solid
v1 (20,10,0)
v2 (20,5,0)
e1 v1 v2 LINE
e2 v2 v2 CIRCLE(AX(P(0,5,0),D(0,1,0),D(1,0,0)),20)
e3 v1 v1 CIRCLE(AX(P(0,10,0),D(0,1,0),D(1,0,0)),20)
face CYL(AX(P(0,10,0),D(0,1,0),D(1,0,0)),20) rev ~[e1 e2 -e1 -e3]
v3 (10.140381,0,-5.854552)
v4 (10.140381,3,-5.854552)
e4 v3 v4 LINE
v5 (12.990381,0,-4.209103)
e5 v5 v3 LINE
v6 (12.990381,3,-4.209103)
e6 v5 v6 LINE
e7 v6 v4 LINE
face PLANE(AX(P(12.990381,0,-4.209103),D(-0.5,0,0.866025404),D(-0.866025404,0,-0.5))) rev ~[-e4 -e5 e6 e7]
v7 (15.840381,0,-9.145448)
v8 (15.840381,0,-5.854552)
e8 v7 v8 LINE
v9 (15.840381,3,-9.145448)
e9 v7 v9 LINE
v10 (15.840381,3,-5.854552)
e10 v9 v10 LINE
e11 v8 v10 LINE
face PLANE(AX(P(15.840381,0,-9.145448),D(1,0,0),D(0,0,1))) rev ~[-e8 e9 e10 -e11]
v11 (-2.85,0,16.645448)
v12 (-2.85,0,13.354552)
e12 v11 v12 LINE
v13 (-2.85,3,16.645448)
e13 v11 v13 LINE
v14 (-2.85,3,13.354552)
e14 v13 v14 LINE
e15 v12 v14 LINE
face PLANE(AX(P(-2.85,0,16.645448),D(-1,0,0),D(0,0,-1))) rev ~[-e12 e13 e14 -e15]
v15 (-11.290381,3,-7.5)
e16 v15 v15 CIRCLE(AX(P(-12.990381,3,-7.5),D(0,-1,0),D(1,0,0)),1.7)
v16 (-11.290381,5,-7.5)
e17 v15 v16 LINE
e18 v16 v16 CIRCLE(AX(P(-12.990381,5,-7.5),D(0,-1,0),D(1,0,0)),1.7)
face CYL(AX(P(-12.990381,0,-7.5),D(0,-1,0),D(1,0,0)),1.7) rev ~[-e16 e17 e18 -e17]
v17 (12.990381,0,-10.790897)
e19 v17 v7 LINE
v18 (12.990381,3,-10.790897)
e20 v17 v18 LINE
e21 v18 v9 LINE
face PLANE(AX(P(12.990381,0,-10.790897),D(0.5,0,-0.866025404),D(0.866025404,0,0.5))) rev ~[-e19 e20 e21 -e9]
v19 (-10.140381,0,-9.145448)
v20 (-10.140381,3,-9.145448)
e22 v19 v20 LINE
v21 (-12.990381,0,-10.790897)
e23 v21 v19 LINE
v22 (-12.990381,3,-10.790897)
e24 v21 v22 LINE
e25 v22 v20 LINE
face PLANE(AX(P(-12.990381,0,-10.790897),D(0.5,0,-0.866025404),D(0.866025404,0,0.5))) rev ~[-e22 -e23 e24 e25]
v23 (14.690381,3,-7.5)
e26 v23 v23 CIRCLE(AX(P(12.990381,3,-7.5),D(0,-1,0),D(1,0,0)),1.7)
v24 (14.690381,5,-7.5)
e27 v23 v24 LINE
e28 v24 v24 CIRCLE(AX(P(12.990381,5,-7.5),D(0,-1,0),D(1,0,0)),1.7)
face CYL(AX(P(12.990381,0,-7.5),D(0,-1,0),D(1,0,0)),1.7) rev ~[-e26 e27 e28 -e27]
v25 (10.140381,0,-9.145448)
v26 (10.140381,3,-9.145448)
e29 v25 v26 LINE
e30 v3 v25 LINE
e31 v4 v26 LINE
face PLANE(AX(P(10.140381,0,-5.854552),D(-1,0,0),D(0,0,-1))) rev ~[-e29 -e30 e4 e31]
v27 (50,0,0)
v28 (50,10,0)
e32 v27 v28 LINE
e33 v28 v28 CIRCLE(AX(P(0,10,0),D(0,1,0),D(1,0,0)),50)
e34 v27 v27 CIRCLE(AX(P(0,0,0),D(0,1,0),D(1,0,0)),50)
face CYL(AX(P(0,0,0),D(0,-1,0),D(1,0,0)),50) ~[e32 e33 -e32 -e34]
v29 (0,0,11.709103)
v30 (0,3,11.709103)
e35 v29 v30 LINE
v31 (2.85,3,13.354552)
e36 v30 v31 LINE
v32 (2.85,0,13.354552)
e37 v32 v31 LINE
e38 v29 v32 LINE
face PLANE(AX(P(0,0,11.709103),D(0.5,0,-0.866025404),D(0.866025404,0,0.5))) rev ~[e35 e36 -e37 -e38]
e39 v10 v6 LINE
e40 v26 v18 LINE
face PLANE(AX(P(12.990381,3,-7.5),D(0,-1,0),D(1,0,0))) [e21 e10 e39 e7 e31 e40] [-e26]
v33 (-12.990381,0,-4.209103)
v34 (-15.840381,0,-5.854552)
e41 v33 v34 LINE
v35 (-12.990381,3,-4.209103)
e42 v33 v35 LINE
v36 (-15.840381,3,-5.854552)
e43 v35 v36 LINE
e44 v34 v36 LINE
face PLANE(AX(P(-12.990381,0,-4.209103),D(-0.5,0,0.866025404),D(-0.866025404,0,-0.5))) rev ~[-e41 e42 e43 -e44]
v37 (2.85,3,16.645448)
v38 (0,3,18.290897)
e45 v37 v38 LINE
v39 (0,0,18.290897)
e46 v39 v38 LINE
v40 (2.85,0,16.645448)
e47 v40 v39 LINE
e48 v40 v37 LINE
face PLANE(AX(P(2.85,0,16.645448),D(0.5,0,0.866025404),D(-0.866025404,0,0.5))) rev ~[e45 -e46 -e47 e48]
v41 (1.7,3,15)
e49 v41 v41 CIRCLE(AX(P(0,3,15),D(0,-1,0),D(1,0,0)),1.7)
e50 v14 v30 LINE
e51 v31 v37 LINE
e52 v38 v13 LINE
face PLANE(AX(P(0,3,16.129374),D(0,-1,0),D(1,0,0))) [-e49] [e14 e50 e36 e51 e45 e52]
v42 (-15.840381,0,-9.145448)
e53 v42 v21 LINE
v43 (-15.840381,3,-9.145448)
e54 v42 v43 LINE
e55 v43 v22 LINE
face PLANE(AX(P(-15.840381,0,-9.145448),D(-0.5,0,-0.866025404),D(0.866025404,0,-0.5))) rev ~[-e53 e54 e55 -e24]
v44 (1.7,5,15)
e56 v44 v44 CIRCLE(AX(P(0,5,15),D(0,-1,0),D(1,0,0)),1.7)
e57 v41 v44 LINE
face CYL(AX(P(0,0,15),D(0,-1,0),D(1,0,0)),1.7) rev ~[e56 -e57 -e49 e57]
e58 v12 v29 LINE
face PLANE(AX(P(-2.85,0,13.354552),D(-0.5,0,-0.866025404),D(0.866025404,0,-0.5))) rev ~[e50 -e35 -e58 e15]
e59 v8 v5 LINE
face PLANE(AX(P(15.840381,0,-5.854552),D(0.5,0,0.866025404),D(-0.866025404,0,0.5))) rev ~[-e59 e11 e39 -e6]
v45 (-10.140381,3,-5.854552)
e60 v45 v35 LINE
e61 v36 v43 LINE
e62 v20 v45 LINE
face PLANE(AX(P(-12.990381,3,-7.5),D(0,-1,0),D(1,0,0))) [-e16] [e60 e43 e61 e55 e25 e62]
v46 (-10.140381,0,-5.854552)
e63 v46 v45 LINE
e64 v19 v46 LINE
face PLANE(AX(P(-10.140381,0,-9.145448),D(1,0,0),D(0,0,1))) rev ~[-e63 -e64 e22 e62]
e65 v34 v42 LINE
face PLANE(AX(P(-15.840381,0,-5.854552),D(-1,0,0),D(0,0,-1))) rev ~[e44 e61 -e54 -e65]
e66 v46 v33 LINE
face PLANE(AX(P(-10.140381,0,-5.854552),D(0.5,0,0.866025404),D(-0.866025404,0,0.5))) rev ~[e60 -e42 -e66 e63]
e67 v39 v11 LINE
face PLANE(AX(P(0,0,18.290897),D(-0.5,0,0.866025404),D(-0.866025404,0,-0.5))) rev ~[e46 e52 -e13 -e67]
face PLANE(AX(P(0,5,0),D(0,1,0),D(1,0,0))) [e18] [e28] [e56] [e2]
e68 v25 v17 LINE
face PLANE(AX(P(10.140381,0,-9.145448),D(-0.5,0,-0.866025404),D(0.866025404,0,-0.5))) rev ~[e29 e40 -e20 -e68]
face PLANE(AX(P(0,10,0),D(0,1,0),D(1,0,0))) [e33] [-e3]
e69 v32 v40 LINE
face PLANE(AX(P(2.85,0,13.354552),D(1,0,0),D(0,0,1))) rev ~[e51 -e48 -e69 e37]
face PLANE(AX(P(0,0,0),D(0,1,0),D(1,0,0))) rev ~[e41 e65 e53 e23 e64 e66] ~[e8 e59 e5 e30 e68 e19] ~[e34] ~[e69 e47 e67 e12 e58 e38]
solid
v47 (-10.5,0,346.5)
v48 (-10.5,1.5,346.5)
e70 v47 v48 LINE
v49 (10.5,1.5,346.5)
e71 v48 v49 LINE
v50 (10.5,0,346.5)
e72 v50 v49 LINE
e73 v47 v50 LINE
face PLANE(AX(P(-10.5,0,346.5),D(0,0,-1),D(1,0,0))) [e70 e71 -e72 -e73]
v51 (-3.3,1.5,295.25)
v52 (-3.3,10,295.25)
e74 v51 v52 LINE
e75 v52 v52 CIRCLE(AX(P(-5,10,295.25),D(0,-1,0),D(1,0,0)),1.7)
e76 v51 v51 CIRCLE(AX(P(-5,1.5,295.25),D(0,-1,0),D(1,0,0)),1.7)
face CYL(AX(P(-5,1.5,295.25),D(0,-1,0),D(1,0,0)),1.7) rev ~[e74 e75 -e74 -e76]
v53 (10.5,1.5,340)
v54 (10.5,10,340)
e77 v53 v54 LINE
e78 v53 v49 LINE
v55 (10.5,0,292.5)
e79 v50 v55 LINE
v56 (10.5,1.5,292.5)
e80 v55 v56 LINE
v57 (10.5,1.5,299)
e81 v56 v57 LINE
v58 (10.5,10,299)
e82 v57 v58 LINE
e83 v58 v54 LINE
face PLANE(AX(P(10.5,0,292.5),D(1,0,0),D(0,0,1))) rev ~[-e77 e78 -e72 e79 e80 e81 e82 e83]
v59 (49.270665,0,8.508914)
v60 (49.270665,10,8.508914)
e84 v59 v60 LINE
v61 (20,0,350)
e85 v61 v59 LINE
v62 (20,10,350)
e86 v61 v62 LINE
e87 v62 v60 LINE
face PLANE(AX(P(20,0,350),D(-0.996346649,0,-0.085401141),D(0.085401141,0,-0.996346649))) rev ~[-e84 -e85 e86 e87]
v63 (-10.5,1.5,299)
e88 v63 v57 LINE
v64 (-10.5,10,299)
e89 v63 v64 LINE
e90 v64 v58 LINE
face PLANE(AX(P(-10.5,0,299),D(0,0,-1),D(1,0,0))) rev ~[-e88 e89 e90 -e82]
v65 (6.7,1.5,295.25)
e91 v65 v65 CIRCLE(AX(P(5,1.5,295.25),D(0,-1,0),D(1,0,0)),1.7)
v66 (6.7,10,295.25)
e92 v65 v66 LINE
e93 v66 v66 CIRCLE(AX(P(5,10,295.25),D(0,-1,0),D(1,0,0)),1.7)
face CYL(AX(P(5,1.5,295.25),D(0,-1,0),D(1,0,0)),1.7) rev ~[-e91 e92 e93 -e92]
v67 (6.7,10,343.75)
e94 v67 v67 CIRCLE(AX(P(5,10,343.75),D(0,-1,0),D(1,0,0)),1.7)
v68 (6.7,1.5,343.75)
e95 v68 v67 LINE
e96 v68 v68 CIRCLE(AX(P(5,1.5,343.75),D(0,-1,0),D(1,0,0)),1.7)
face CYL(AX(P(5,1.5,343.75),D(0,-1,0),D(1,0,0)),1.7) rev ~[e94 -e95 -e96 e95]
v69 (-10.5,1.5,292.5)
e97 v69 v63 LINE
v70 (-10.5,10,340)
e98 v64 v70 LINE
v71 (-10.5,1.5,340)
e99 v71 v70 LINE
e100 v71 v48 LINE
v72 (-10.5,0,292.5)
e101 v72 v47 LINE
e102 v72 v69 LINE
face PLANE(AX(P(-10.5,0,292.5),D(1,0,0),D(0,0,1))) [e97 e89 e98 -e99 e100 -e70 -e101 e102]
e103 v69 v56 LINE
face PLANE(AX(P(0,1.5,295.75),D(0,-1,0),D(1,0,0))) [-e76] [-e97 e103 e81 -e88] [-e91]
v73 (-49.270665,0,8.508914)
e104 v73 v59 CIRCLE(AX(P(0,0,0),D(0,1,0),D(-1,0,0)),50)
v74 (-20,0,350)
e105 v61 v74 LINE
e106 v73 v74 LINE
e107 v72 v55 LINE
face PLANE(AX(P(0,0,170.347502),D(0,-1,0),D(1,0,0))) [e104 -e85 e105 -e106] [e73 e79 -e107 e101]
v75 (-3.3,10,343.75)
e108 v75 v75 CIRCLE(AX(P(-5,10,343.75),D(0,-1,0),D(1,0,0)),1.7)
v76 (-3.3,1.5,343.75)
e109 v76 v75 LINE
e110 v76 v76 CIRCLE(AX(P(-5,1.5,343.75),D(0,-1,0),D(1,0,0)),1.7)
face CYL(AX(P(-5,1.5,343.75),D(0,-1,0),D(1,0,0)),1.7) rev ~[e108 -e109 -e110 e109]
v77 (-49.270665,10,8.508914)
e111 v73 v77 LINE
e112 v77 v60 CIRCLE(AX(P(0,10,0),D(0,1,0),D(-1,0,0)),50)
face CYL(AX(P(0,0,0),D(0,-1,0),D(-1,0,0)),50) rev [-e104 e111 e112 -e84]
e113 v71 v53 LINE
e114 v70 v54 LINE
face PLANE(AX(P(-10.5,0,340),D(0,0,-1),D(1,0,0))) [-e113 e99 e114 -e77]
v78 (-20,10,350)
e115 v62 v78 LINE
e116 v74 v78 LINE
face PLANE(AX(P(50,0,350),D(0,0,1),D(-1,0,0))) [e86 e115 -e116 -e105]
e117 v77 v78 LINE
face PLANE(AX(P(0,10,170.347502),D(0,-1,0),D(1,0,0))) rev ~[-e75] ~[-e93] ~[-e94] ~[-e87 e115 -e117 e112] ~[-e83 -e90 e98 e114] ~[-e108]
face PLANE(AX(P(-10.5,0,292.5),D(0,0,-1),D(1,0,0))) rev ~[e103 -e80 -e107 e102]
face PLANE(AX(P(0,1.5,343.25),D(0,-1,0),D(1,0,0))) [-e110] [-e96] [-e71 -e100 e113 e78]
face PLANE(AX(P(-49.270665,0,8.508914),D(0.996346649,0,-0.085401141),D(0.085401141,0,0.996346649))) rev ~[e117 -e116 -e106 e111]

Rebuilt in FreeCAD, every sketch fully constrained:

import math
import FreeCAD as App
import Part
import Sketcher
Q = App.Units.Quantity


def add_polygon(sketch, points):
    """Adds a closed chain of lines whose ends are joined by coincident constraints."""
    first, n = sketch.GeometryCount, len(points)
    for a, b in zip(points, points[1:] + points[:1]):
        sketch.addGeometry(Part.LineSegment(App.Vector(*a, 0), App.Vector(*b, 0)), False)
    for i in range(n):
        sketch.addConstraint(Sketcher.Constraint("Coincident", first + i, 2, first + (i + 1) % n, 1))

doc = App.newDocument("Part")
body = doc.addObject("PartDesign::Body", "Body")

# Sketch on XZ plane
sketch1 = body.newObject("Sketcher::SketchObject", "Sketch")
sketch1.AttachmentSupport = (doc.getObject("XZ_Plane"), [""])
sketch1.MapMode = "FlatFace"
sketch1.addGeometry(Part.Circle(App.Vector(0, 0, 0), App.Vector(0, 0, 1), 50), False)
sketch1.addConstraint(Sketcher.Constraint("Coincident", 0, 3, -1, 1))
sketch1.addConstraint(Sketcher.Constraint("Diameter", 0, Q("100 mm")))
pad1 = body.newObject("PartDesign::Pad", "Pad")
pad1.Profile = sketch1
pad1.Length = 10
pad1.Reversed = True

# Sketch on XZ plane
sketch2 = body.newObject("Sketcher::SketchObject", "Sketch001")
sketch2.AttachmentSupport = (doc.getObject("XZ_Plane"), [""])
sketch2.MapMode = "FlatFace"
sketch2.AttachmentOffset = App.Placement(App.Vector(0, 0, -10), App.Rotation())
sketch2.addGeometry(Part.Circle(App.Vector(0, 0, 0), App.Vector(0, 0, 1), 20), False)
sketch2.addConstraint(Sketcher.Constraint("Coincident", 0, 3, -1, 1))
sketch2.addConstraint(Sketcher.Constraint("Diameter", 0, Q("40 mm")))
pocket1 = body.newObject("PartDesign::Pocket", "Pocket")
pocket1.Profile = sketch2
pocket1.Length = 5
pocket1.Reversed = True

# Sketch on XZ plane
sketch3 = body.newObject("Sketcher::SketchObject", "Sketch002")
sketch3.AttachmentSupport = (doc.getObject("XZ_Plane"), [""])
sketch3.MapMode = "FlatFace"
add_polygon(sketch3, [(2.9, 16.6), (0, 18.3), (-2.9, 16.6), (-2.9, 13.4), (0, 11.7), (2.9, 13.4)])  # lines 0-5
add_polygon(sketch3, [(-13, -4.2), (-15.8, -5.9), (-15.8, -9.1), (-13, -10.8), (-10.1, -9.1), (-10.1, -5.9)])  # lines 6-11
add_polygon(sketch3, [(15.8, -5.9), (13, -4.2), (10.1, -5.9), (10.1, -9.1), (13, -10.8), (15.8, -9.1)])  # lines 12-17
sketch3.addConstraint(Sketcher.Constraint("Vertical", 2))
sketch3.addConstraint(Sketcher.Constraint("Vertical", 5))
sketch3.addConstraint(Sketcher.Constraint("Vertical", 7))
sketch3.addConstraint(Sketcher.Constraint("Vertical", 10))
sketch3.addConstraint(Sketcher.Constraint("Vertical", 14))
sketch3.addConstraint(Sketcher.Constraint("Vertical", 17))
sketch3.addConstraint(Sketcher.Constraint("Symmetric", 2, 2, 4, 2, -2))
sketch3.addConstraint(Sketcher.Constraint("Symmetric", 11, 2, 12, 2, -2))
sketch3.addConstraint(Sketcher.Constraint("Symmetric", 10, 2, 13, 2, -2))
sketch3.addConstraint(Sketcher.Constraint("Symmetric", 8, 2, 15, 2, -2))
sketch3.addConstraint(Sketcher.Constraint("Symmetric", 7, 2, 16, 2, -2))
sketch3.addConstraint(Sketcher.Constraint("PointOnObject", 0, 2, -2))
sketch3.addConstraint(Sketcher.Constraint("PointOnObject", 3, 2, -2))
sketch3.addConstraint(Sketcher.Constraint("Parallel", 0, 3))
sketch3.addConstraint(Sketcher.Constraint("Parallel", 1, 4))
sketch3.addConstraint(Sketcher.Constraint("Parallel", 4, 6))
sketch3.addConstraint(Sketcher.Constraint("Parallel", 3, 8))
sketch3.addConstraint(Sketcher.Constraint("Parallel", 6, 9))
sketch3.addConstraint(Sketcher.Constraint("Parallel", 8, 11))
sketch3.addConstraint(Sketcher.Constraint("Parallel", 11, 12))
sketch3.addConstraint(Sketcher.Constraint("Parallel", 12, 15))
sketch3.addConstraint(Sketcher.Constraint("Horizontal", 7, 2, 9, 2))
sketch3.addConstraint(Sketcher.Constraint("Horizontal", 6, 2, 10, 2))
sketch3.addConstraint(Sketcher.Constraint("Equal", 5, 7))
sketch3.addConstraint(Sketcher.Constraint("Equal", 4, 6))
sketch3.addConstraint(Sketcher.Constraint("Angle", 0, Q("150 deg")))
sketch3.addConstraint(Sketcher.Constraint("DistanceX", 2, 2, 4, 2, Q("5.7 mm")))
sketch3.addConstraint(Sketcher.Constraint("DistanceY", 6, 2, 1, 2, Q("22.5 mm")))
sketch3.addConstraint(Sketcher.Constraint("DistanceY", 2, 2, 2, 1, Q("3.290897 mm")))
sketch3.addConstraint(Sketcher.Constraint("DistanceY", -1, 1, 1, 2, Q("16.645448 mm")))
sketch3.addConstraint(Sketcher.Constraint("DistanceX", 6, 2, -1, 1, Q("15.840381 mm")))
pocket2 = body.newObject("PartDesign::Pocket", "Pocket001")
pocket2.Profile = sketch3
pocket2.Length = 3

# Sketch on XZ plane
sketch4 = body.newObject("Sketcher::SketchObject", "Sketch003")
sketch4.AttachmentSupport = (doc.getObject("XZ_Plane"), [""])
sketch4.MapMode = "FlatFace"
sketch4.addGeometry(Part.Circle(App.Vector(0, 15, 0), App.Vector(0, 0, 1), 1.7), False)
sketch4.addGeometry(Part.Circle(App.Vector(13, -7.5, 0), App.Vector(0, 0, 1), 1.7), False)
sketch4.addGeometry(Part.Circle(App.Vector(-13, -7.5, 0), App.Vector(0, 0, 1), 1.7), False)
sketch4.addConstraint(Sketcher.Constraint("Equal", 0, 1))
sketch4.addConstraint(Sketcher.Constraint("Equal", 1, 2))
sketch4.addConstraint(Sketcher.Constraint("Symmetric", 1, 3, 2, 3, -2))
sketch4.addConstraint(Sketcher.Constraint("PointOnObject", 0, 3, -2))
sketch4.addConstraint(Sketcher.Constraint("Diameter", 0, Q("3.4 mm")))
sketch4.addConstraint(Sketcher.Constraint("DistanceY", -1, 1, 0, 3, Q("15 mm")))
sketch4.addConstraint(Sketcher.Constraint("DistanceY", 1, 3, -1, 1, Q("7.5 mm")))
sketch4.addConstraint(Sketcher.Constraint("DistanceX", -1, 1, 1, 3, Q("12.990381 mm")))
pocket3 = body.newObject("PartDesign::Pocket", "Pocket002")
pocket3.Profile = sketch4
pocket3.Length = 10
body2 = doc.addObject("PartDesign::Body", "Body001")

# Sketch on XZ plane
sketch5 = body2.newObject("Sketcher::SketchObject", "Sketch004")
sketch5.AttachmentSupport = (doc.getObject("XZ_Plane001"), [""])
sketch5.MapMode = "FlatFace"
sketch5.addGeometry(Part.LineSegment(App.Vector(-50, 350, 0), App.Vector(-50, 0, 0)), False)
sketch5.addGeometry(Part.ArcOfCircle(Part.Circle(App.Vector(0, 0, 0), App.Vector(0, 0, 1), 50), math.radians(0), math.radians(180)), False)
sketch5.addGeometry(Part.LineSegment(App.Vector(50, 0, 0), App.Vector(50, 350, 0)), False)
sketch5.addGeometry(Part.LineSegment(App.Vector(50, 350, 0), App.Vector(-50, 350, 0)), False)
sketch5.addConstraint(Sketcher.Constraint("Tangent", 0, 2, 1, 2))
sketch5.addConstraint(Sketcher.Constraint("Tangent", 1, 1, 2, 1))
sketch5.addConstraint(Sketcher.Constraint("Coincident", 2, 2, 3, 1))
sketch5.addConstraint(Sketcher.Constraint("Coincident", 3, 2, 0, 1))
sketch5.addConstraint(Sketcher.Constraint("Vertical", 0))
sketch5.addConstraint(Sketcher.Constraint("Vertical", 2))
sketch5.addConstraint(Sketcher.Constraint("Horizontal", 3))
sketch5.addConstraint(Sketcher.Constraint("Coincident", 1, 3, -1, 1))
sketch5.addConstraint(Sketcher.Constraint("Radius", 1, Q("50 mm")))
sketch5.addConstraint(Sketcher.Constraint("DistanceY", 0, 2, 0, 1, Q("350 mm")))
pad2 = body2.newObject("PartDesign::Pad", "Pad001")
pad2.Profile = sketch5
pad2.Length = 10
pad2.Reversed = True

# Sketch on XZ plane
sketch6 = body2.newObject("Sketcher::SketchObject", "Sketch005")
sketch6.AttachmentSupport = (doc.getObject("XZ_Plane001"), [""])
sketch6.MapMode = "FlatFace"
add_polygon(sketch6, [(-10, 340), (-10, 299), (10, 299), (10, 340)])  # lines 0-3
sketch6.addConstraint(Sketcher.Constraint("Vertical", 0))
sketch6.addConstraint(Sketcher.Constraint("Horizontal", 1))
sketch6.addConstraint(Sketcher.Constraint("Vertical", 2))
sketch6.addConstraint(Sketcher.Constraint("Horizontal", 3))
sketch6.addConstraint(Sketcher.Constraint("DistanceX", 1, 1, 1, 2, Q("21 mm")))
sketch6.addConstraint(Sketcher.Constraint("DistanceY", 0, 2, 0, 1, Q("41 mm")))
sketch6.addConstraint(Sketcher.Constraint("DistanceY", -1, 1, 0, 2, Q("299 mm")))
sketch6.addConstraint(Sketcher.Constraint("DistanceX", 0, 2, -1, 1, Q("10.5 mm")))
pocket4 = body2.newObject("PartDesign::Pocket", "Pocket003")
pocket4.Profile = sketch6
pocket4.Length = 10

# Sketch on XZ plane
sketch7 = body2.newObject("Sketcher::SketchObject", "Sketch006")
sketch7.AttachmentSupport = (doc.getObject("XZ_Plane001"), [""])
sketch7.MapMode = "FlatFace"
add_polygon(sketch7, [(-10, 346), (-10, 340), (10, 340), (10, 346)])  # lines 0-3
add_polygon(sketch7, [(-10, 299), (-10, 292), (10, 292), (10, 299)])  # lines 4-7
sketch7.addConstraint(Sketcher.Constraint("Vertical", 0))
sketch7.addConstraint(Sketcher.Constraint("Horizontal", 1))
sketch7.addConstraint(Sketcher.Constraint("Vertical", 2))
sketch7.addConstraint(Sketcher.Constraint("Horizontal", 3))
sketch7.addConstraint(Sketcher.Constraint("Vertical", 4))
sketch7.addConstraint(Sketcher.Constraint("Horizontal", 5))
sketch7.addConstraint(Sketcher.Constraint("Vertical", 6))
sketch7.addConstraint(Sketcher.Constraint("Horizontal", 7))
sketch7.addConstraint(Sketcher.Constraint("Vertical", 3, 2, 4, 2))
sketch7.addConstraint(Sketcher.Constraint("Vertical", 2, 2, 5, 2))
sketch7.addConstraint(Sketcher.Constraint("Equal", 2, 4))
sketch7.addConstraint(Sketcher.Constraint("DistanceX", 1, 1, 1, 2, Q("21 mm")))
sketch7.addConstraint(Sketcher.Constraint("DistanceY", 0, 2, 0, 1, Q("6.5 mm")))
sketch7.addConstraint(Sketcher.Constraint("DistanceY", -1, 1, 0, 2, Q("340 mm")))
sketch7.addConstraint(Sketcher.Constraint("DistanceY", -1, 1, 6, 2, Q("299 mm")))
sketch7.addConstraint(Sketcher.Constraint("DistanceX", 0, 2, -1, 1, Q("10.5 mm")))
pocket5 = body2.newObject("PartDesign::Pocket", "Pocket004")
pocket5.Profile = sketch7
pocket5.Length = 1.5

# Sketch on XZ plane
sketch8 = body2.newObject("Sketcher::SketchObject", "Sketch007")
sketch8.AttachmentSupport = (doc.getObject("XZ_Plane001"), [""])
sketch8.MapMode = "FlatFace"
sketch8.AttachmentOffset = App.Placement(App.Vector(0, 0, -1.5), App.Rotation())
sketch8.addGeometry(Part.Circle(App.Vector(-5, 343.8, 0), App.Vector(0, 0, 1), 1.7), False)
sketch8.addGeometry(Part.Circle(App.Vector(5, 343.8, 0), App.Vector(0, 0, 1), 1.7), False)
sketch8.addGeometry(Part.Circle(App.Vector(-5, 295.2, 0), App.Vector(0, 0, 1), 1.7), False)
sketch8.addGeometry(Part.Circle(App.Vector(5, 295.2, 0), App.Vector(0, 0, 1), 1.7), False)
sketch8.addConstraint(Sketcher.Constraint("Equal", 0, 1))
sketch8.addConstraint(Sketcher.Constraint("Equal", 1, 2))
sketch8.addConstraint(Sketcher.Constraint("Equal", 2, 3))
sketch8.addConstraint(Sketcher.Constraint("Symmetric", 0, 3, 1, 3, -2))
sketch8.addConstraint(Sketcher.Constraint("Symmetric", 2, 3, 3, 3, -2))
sketch8.addConstraint(Sketcher.Constraint("Vertical", 0, 3, 2, 3))
sketch8.addConstraint(Sketcher.Constraint("Diameter", 0, Q("3.4 mm")))
sketch8.addConstraint(Sketcher.Constraint("DistanceX", 0, 3, -1, 1, Q("5 mm")))
sketch8.addConstraint(Sketcher.Constraint("DistanceY", 2, 3, 0, 3, Q("48.5 mm")))
sketch8.addConstraint(Sketcher.Constraint("DistanceY", -1, 1, 0, 3, Q("343.75 mm")))
pocket6 = body2.newObject("PartDesign::Pocket", "Pocket005")
pocket6.Profile = sketch8
pocket6.Length = 9

# Sketch on XZ plane
sketch9 = body2.newObject("Sketcher::SketchObject", "Sketch008")
sketch9.AttachmentSupport = (doc.getObject("XZ_Plane001"), [""])
sketch9.MapMode = "FlatFace"
sketch9.addGeometry(Part.LineSegment(App.Vector(-50, 350, 0), App.Vector(-50, 0, 0)), False)
sketch9.addGeometry(Part.ArcOfCircle(Part.Circle(App.Vector(0, 0, 0), App.Vector(0, 0, 1), 50), math.radians(170.2), math.radians(180)), False)
sketch9.addGeometry(Part.LineSegment(App.Vector(-49, 9, 0), App.Vector(-20, 350, 0)), False)
sketch9.addGeometry(Part.LineSegment(App.Vector(-20, 350, 0), App.Vector(-50, 350, 0)), False)
sketch9.addGeometry(Part.LineSegment(App.Vector(20, 350, 0), App.Vector(49, 9, 0)), False)
sketch9.addGeometry(Part.ArcOfCircle(Part.Circle(App.Vector(0, 0, 0), App.Vector(0, 0, 1), 50), math.radians(0), math.radians(9.8)), False)
sketch9.addGeometry(Part.LineSegment(App.Vector(50, 0, 0), App.Vector(50, 350, 0)), False)
sketch9.addGeometry(Part.LineSegment(App.Vector(50, 350, 0), App.Vector(20, 350, 0)), False)
sketch9.addConstraint(Sketcher.Constraint("Tangent", 0, 2, 1, 2))
sketch9.addConstraint(Sketcher.Constraint("Coincident", 1, 1, 2, 1))
sketch9.addConstraint(Sketcher.Constraint("Coincident", 2, 2, 3, 1))
sketch9.addConstraint(Sketcher.Constraint("Coincident", 3, 2, 0, 1))
sketch9.addConstraint(Sketcher.Constraint("Coincident", 4, 2, 5, 2))
sketch9.addConstraint(Sketcher.Constraint("Tangent", 5, 1, 6, 1))
sketch9.addConstraint(Sketcher.Constraint("Coincident", 6, 2, 7, 1))
sketch9.addConstraint(Sketcher.Constraint("Coincident", 7, 2, 4, 1))
sketch9.addConstraint(Sketcher.Constraint("Vertical", 0))
sketch9.addConstraint(Sketcher.Constraint("Horizontal", 3))
sketch9.addConstraint(Sketcher.Constraint("Vertical", 6))
sketch9.addConstraint(Sketcher.Constraint("Horizontal", 7))
sketch9.addConstraint(Sketcher.Constraint("Coincident", 1, 3, -1, 1))
sketch9.addConstraint(Sketcher.Constraint("Coincident", 5, 3, -1, 1))
sketch9.addConstraint(Sketcher.Constraint("Equal", 1, 5))
sketch9.addConstraint(Sketcher.Constraint("Symmetric", 2, 2, 7, 2, -2))
sketch9.addConstraint(Sketcher.Constraint("Horizontal", 1, 1, 4, 2))
sketch9.addConstraint(Sketcher.Constraint("Radius", 1, Q("50 mm")))
sketch9.addConstraint(Sketcher.Constraint("DistanceX", 3, 2, 3, 1, Q("30 mm")))
sketch9.addConstraint(Sketcher.Constraint("DistanceY", 0, 2, 0, 1, Q("350 mm")))
sketch9.addConstraint(Sketcher.Constraint("DistanceX", 1, 1, 4, 2, Q("98.541329 mm")))
pocket7 = body2.newObject("PartDesign::Pocket", "Pocket006")
pocket7.Profile = sketch9
pocket7.Length = 10

doc.recompute()
